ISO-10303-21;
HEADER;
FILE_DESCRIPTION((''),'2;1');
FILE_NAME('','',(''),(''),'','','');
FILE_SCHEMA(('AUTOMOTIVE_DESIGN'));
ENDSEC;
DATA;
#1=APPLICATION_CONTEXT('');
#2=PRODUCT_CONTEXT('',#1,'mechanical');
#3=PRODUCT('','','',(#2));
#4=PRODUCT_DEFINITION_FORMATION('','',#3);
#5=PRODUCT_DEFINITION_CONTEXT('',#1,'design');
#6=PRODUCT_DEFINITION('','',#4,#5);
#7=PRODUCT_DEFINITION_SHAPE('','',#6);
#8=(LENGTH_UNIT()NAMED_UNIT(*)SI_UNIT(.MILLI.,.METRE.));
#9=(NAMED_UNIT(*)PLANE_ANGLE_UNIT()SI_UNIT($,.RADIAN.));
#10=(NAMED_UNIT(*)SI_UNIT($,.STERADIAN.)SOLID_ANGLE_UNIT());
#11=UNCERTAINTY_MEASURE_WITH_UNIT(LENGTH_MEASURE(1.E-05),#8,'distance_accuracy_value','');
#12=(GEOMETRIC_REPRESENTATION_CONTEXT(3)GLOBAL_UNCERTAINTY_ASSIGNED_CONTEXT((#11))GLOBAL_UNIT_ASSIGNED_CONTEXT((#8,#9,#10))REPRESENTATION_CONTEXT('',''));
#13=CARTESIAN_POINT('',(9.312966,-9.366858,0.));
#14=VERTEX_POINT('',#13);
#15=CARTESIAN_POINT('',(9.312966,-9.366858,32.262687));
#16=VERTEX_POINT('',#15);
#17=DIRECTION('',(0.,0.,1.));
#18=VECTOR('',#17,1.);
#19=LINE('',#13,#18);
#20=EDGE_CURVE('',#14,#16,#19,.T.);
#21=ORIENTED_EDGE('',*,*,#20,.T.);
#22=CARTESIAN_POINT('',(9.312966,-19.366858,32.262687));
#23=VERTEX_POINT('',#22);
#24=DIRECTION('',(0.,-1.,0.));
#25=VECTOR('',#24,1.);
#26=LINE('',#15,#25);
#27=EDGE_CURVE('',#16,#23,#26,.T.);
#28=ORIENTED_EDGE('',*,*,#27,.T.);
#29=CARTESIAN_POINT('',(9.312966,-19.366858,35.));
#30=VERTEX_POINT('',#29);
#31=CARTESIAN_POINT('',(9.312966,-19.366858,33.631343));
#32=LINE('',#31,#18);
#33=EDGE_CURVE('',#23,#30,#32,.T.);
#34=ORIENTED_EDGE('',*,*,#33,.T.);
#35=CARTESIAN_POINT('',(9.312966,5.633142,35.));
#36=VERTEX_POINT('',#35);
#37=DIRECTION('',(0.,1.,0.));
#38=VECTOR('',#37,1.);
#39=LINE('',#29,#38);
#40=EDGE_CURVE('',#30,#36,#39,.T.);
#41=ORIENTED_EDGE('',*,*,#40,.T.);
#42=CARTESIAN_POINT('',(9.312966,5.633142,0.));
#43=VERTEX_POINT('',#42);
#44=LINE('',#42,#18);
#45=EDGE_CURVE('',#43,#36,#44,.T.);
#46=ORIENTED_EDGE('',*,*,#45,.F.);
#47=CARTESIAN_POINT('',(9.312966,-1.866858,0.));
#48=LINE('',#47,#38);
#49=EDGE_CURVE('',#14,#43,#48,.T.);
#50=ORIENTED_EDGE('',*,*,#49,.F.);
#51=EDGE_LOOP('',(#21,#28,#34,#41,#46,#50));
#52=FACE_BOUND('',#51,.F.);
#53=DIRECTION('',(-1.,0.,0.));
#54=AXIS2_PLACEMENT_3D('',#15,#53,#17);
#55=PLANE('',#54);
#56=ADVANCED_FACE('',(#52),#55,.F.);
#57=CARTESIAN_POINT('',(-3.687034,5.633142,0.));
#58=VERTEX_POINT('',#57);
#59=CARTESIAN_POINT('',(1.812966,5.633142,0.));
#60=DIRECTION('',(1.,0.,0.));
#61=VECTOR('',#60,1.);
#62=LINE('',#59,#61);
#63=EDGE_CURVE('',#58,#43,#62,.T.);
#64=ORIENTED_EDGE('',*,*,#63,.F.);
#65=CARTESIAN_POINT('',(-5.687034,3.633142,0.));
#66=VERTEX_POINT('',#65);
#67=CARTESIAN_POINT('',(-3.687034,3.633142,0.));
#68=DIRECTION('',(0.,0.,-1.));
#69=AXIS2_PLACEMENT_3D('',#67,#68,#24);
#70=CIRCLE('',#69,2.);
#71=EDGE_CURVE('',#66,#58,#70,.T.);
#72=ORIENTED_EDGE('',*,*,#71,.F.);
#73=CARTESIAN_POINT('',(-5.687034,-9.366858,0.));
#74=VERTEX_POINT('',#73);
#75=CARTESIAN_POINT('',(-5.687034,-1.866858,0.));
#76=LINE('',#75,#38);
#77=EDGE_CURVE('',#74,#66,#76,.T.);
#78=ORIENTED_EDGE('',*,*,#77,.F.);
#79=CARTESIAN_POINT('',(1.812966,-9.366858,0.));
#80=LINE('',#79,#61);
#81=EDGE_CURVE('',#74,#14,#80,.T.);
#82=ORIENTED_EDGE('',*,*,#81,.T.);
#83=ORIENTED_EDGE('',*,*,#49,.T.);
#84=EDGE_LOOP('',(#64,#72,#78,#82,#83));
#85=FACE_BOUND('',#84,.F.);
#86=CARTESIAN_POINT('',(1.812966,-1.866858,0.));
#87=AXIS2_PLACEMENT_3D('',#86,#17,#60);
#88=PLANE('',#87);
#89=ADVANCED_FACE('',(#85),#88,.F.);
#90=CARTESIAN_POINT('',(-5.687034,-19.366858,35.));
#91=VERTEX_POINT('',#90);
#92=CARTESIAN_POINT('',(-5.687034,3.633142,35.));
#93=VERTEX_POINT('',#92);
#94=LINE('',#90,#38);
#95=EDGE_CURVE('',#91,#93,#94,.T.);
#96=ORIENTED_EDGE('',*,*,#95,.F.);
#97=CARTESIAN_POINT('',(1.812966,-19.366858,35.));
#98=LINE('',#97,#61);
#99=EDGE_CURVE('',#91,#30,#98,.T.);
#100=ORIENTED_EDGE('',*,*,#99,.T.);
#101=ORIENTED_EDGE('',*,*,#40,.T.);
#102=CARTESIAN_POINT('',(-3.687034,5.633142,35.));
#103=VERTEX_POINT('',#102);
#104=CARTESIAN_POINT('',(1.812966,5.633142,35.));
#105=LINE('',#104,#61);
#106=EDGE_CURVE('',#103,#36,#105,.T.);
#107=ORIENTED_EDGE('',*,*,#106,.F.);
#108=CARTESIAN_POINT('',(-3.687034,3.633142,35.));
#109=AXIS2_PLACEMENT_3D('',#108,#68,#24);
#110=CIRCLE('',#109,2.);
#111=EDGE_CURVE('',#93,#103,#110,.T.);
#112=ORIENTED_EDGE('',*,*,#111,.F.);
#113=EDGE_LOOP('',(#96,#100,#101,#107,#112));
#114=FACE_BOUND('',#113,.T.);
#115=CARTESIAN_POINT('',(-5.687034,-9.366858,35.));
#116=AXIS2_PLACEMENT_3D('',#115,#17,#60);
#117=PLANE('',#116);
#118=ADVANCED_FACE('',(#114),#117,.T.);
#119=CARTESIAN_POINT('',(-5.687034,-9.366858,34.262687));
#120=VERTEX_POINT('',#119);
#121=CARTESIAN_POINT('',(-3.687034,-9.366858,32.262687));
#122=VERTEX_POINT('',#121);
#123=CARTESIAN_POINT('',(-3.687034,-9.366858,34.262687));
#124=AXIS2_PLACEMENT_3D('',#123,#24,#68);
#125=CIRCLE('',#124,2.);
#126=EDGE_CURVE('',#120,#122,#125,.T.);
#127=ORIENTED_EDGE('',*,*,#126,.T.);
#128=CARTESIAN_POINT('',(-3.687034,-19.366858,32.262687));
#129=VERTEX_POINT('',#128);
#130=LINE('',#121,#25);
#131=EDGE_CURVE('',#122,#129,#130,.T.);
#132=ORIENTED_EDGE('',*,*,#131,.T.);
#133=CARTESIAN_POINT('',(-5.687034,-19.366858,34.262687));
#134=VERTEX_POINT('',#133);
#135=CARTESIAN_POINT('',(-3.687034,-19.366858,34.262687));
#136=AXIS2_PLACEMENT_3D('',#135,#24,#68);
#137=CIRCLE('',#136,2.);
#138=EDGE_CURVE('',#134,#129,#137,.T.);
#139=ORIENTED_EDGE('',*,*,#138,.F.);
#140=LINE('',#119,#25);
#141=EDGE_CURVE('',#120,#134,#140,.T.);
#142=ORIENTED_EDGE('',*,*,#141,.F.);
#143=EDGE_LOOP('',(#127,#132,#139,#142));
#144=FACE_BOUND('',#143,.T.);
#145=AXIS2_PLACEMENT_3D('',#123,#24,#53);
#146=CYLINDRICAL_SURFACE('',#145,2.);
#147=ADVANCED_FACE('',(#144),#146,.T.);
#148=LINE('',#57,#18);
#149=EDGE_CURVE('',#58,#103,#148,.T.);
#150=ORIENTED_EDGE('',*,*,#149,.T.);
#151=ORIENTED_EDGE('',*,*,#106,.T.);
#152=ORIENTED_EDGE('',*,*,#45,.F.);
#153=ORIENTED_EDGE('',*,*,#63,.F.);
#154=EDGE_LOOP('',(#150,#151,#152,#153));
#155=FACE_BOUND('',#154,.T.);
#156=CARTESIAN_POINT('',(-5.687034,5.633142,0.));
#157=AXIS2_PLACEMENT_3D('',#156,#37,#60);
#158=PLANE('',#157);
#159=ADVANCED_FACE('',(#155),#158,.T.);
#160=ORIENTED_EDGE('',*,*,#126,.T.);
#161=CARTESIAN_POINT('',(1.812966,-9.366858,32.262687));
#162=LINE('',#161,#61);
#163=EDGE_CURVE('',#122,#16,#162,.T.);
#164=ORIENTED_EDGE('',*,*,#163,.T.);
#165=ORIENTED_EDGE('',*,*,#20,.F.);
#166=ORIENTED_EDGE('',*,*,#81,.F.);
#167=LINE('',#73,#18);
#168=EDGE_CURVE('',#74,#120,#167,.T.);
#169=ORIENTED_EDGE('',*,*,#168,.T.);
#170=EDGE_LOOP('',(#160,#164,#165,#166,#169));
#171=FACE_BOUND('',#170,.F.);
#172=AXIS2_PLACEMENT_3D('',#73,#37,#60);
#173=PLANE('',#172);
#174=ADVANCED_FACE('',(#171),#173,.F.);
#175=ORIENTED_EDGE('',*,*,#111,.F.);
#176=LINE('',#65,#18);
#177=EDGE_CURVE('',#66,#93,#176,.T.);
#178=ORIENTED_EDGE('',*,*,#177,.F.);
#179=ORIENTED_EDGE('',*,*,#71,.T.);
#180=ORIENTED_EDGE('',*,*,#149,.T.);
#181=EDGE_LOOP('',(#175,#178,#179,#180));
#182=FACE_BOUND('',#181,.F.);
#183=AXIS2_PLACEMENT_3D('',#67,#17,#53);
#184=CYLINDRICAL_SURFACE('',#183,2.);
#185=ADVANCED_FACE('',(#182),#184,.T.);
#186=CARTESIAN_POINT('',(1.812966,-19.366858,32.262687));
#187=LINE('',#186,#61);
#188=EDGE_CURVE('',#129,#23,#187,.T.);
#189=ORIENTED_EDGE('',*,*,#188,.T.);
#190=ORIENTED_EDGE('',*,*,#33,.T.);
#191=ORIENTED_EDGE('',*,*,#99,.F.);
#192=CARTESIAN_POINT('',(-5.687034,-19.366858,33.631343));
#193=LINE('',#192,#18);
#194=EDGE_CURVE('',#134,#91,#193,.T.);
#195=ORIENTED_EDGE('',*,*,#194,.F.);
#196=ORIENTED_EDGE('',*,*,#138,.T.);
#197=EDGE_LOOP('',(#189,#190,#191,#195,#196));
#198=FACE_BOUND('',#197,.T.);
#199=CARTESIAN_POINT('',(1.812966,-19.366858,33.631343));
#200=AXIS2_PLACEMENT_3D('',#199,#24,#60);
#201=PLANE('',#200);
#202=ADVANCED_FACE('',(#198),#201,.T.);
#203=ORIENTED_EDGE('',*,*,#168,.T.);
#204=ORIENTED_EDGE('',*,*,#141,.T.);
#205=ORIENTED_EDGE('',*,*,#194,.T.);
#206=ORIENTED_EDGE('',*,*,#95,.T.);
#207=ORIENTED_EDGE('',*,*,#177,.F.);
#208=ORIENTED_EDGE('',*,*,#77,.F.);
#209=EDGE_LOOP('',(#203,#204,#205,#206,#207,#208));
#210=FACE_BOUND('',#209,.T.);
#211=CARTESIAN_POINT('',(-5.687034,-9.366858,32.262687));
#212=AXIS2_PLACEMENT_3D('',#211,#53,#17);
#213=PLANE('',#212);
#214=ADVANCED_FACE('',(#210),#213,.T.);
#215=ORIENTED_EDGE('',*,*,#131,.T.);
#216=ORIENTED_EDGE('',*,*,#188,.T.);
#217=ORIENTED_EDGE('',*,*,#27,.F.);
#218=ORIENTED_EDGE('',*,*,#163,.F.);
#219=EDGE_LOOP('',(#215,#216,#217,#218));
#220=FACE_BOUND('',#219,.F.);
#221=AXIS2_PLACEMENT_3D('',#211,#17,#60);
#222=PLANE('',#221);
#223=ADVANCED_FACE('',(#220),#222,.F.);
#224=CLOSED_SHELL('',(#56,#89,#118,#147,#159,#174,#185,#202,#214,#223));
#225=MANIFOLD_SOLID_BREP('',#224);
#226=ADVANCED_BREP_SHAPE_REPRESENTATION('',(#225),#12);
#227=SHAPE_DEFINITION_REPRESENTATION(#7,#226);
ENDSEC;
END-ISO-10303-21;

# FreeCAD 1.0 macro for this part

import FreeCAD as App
import Part
import Sketcher

V = App.Vector


def edges_at(feature, points):
    """Names of the edges that pass closest to the given points."""
    edges = feature.Shape.Edges
    near = lambda p: min(range(len(edges)), key=lambda i: edges[i].distToShape(Part.Vertex(*p))[0])
    return sorted({f"Edge{near(p) + 1}" for p in points})

doc = App.newDocument("Part")
params = doc.addObject("Spreadsheet::Sheet", "Params")
for row, (alias, value) in enumerate([
    ("sketch1_width", "15 mm"),
    ("pad1_length", "35 mm"),
    ("sketch2_width", "15 mm"),
    ("pad2_length", "10 mm"),
    ("fillet_radius", "2 mm"),
    ("fillet2_radius", "2 mm"),
], start=1):
    params.set(f"A{row}", alias)
    params.set(f"B{row}", "=" + value)
    params.setAlias(f"B{row}", alias)

body = doc.addObject("PartDesign::Body", "Body")

sketch1 = body.newObject("Sketcher::SketchObject", "Sketch")
sketch1.AttachmentSupport = (doc.getObject("XY_Plane"), [""])
sketch1.MapMode = "FlatFace"
sketch1.addGeometry([
    Part.LineSegment(V(-5.687034, 5.633142, 0), V(-5.687034, -9.366858, 0)),
    Part.LineSegment(V(-5.687034, -9.366858, 0), V(9.312966, -9.366858, 0)),
    Part.LineSegment(V(9.312966, -9.366858, 0), V(9.312966, 5.633142, 0)),
    Part.LineSegment(V(9.312966, 5.633142, 0), V(-5.687034, 5.633142, 0)),
], False)
sketch1.addConstraint([
    Sketcher.Constraint("Coincident", 0, 2, 1, 1),
    Sketcher.Constraint("Coincident", 1, 2, 2, 1),
    Sketcher.Constraint("Coincident", 2, 2, 3, 1),
    Sketcher.Constraint("Coincident", 3, 2, 0, 1),
    Sketcher.Constraint("Vertical", 0),
    Sketcher.Constraint("Horizontal", 1),
    Sketcher.Constraint("Vertical", 2),
    Sketcher.Constraint("Horizontal", 3),
    Sketcher.Constraint("Equal", 3, 0),
    Sketcher.Constraint("DistanceX", 1, 1, 1, 2, 15.0),
    Sketcher.Constraint("DistanceY", 0, 2, -1, 1, 9.366858),
    Sketcher.Constraint("DistanceX", 0, 2, -1, 1, 5.687034),
])
sketch1.setExpression("Constraints[9]", "Params.sketch1_width")
pad1 = body.newObject("PartDesign::Pad", "Pad")
pad1.Profile = sketch1
pad1.setExpression("Length", "Params.pad1_length")

sketch2 = body.newObject("Sketcher::SketchObject", "Sketch001")
sketch2.AttachmentSupport = (doc.getObject("XZ_Plane"), [""])
sketch2.MapMode = "FlatFace"
sketch2.AttachmentOffset = App.Placement(V(0, 0, 9.366858), App.Rotation())
sketch2.addGeometry([
    Part.LineSegment(V(-5.687034, 35, 0), V(-5.687034, 32.262687, 0)),
    Part.LineSegment(V(-5.687034, 32.262687, 0), V(9.312966, 32.262687, 0)),
    Part.LineSegment(V(9.312966, 32.262687, 0), V(9.312966, 35, 0)),
    Part.LineSegment(V(9.312966, 35, 0), V(-5.687034, 35, 0)),
], False)
sketch2.addConstraint([
    Sketcher.Constraint("Coincident", 0, 2, 1, 1),
    Sketcher.Constraint("Coincident", 1, 2, 2, 1),
    Sketcher.Constraint("Coincident", 2, 2, 3, 1),
    Sketcher.Constraint("Coincident", 3, 2, 0, 1),
    Sketcher.Constraint("Vertical", 0),
    Sketcher.Constraint("Horizontal", 1),
    Sketcher.Constraint("Vertical", 2),
    Sketcher.Constraint("Horizontal", 3),
    Sketcher.Constraint("DistanceX", 1, 1, 1, 2, 15.0),
    Sketcher.Constraint("DistanceY", -1, 1, 2, 2, 35.0),
    Sketcher.Constraint("DistanceY", 0, 2, 0, 1, 2.737313),
    Sketcher.Constraint("DistanceX", 0, 2, -1, 1, 5.687034),
])
sketch2.setExpression("Constraints[8]", "Params.sketch2_width")
pad2 = body.newObject("PartDesign::Pad", "Pad001")
pad2.Profile = sketch2
pad2.setExpression("Length", "Params.pad2_length")
doc.recompute()

fillet = body.newObject("PartDesign::Fillet", "Fillet")
fillet.Base = (pad2, edges_at(pad2, [(-5.687, 5.633, 17.5)]))
fillet.setExpression("Radius", "Params.fillet_radius")
doc.recompute()

fillet2 = body.newObject("PartDesign::Fillet", "Fillet001")
fillet2.Base = (fillet, edges_at(fillet, [(-5.687, -14.367, 32.263)]))
fillet2.setExpression("Radius", "Params.fillet2_radius")

doc.recompute()
